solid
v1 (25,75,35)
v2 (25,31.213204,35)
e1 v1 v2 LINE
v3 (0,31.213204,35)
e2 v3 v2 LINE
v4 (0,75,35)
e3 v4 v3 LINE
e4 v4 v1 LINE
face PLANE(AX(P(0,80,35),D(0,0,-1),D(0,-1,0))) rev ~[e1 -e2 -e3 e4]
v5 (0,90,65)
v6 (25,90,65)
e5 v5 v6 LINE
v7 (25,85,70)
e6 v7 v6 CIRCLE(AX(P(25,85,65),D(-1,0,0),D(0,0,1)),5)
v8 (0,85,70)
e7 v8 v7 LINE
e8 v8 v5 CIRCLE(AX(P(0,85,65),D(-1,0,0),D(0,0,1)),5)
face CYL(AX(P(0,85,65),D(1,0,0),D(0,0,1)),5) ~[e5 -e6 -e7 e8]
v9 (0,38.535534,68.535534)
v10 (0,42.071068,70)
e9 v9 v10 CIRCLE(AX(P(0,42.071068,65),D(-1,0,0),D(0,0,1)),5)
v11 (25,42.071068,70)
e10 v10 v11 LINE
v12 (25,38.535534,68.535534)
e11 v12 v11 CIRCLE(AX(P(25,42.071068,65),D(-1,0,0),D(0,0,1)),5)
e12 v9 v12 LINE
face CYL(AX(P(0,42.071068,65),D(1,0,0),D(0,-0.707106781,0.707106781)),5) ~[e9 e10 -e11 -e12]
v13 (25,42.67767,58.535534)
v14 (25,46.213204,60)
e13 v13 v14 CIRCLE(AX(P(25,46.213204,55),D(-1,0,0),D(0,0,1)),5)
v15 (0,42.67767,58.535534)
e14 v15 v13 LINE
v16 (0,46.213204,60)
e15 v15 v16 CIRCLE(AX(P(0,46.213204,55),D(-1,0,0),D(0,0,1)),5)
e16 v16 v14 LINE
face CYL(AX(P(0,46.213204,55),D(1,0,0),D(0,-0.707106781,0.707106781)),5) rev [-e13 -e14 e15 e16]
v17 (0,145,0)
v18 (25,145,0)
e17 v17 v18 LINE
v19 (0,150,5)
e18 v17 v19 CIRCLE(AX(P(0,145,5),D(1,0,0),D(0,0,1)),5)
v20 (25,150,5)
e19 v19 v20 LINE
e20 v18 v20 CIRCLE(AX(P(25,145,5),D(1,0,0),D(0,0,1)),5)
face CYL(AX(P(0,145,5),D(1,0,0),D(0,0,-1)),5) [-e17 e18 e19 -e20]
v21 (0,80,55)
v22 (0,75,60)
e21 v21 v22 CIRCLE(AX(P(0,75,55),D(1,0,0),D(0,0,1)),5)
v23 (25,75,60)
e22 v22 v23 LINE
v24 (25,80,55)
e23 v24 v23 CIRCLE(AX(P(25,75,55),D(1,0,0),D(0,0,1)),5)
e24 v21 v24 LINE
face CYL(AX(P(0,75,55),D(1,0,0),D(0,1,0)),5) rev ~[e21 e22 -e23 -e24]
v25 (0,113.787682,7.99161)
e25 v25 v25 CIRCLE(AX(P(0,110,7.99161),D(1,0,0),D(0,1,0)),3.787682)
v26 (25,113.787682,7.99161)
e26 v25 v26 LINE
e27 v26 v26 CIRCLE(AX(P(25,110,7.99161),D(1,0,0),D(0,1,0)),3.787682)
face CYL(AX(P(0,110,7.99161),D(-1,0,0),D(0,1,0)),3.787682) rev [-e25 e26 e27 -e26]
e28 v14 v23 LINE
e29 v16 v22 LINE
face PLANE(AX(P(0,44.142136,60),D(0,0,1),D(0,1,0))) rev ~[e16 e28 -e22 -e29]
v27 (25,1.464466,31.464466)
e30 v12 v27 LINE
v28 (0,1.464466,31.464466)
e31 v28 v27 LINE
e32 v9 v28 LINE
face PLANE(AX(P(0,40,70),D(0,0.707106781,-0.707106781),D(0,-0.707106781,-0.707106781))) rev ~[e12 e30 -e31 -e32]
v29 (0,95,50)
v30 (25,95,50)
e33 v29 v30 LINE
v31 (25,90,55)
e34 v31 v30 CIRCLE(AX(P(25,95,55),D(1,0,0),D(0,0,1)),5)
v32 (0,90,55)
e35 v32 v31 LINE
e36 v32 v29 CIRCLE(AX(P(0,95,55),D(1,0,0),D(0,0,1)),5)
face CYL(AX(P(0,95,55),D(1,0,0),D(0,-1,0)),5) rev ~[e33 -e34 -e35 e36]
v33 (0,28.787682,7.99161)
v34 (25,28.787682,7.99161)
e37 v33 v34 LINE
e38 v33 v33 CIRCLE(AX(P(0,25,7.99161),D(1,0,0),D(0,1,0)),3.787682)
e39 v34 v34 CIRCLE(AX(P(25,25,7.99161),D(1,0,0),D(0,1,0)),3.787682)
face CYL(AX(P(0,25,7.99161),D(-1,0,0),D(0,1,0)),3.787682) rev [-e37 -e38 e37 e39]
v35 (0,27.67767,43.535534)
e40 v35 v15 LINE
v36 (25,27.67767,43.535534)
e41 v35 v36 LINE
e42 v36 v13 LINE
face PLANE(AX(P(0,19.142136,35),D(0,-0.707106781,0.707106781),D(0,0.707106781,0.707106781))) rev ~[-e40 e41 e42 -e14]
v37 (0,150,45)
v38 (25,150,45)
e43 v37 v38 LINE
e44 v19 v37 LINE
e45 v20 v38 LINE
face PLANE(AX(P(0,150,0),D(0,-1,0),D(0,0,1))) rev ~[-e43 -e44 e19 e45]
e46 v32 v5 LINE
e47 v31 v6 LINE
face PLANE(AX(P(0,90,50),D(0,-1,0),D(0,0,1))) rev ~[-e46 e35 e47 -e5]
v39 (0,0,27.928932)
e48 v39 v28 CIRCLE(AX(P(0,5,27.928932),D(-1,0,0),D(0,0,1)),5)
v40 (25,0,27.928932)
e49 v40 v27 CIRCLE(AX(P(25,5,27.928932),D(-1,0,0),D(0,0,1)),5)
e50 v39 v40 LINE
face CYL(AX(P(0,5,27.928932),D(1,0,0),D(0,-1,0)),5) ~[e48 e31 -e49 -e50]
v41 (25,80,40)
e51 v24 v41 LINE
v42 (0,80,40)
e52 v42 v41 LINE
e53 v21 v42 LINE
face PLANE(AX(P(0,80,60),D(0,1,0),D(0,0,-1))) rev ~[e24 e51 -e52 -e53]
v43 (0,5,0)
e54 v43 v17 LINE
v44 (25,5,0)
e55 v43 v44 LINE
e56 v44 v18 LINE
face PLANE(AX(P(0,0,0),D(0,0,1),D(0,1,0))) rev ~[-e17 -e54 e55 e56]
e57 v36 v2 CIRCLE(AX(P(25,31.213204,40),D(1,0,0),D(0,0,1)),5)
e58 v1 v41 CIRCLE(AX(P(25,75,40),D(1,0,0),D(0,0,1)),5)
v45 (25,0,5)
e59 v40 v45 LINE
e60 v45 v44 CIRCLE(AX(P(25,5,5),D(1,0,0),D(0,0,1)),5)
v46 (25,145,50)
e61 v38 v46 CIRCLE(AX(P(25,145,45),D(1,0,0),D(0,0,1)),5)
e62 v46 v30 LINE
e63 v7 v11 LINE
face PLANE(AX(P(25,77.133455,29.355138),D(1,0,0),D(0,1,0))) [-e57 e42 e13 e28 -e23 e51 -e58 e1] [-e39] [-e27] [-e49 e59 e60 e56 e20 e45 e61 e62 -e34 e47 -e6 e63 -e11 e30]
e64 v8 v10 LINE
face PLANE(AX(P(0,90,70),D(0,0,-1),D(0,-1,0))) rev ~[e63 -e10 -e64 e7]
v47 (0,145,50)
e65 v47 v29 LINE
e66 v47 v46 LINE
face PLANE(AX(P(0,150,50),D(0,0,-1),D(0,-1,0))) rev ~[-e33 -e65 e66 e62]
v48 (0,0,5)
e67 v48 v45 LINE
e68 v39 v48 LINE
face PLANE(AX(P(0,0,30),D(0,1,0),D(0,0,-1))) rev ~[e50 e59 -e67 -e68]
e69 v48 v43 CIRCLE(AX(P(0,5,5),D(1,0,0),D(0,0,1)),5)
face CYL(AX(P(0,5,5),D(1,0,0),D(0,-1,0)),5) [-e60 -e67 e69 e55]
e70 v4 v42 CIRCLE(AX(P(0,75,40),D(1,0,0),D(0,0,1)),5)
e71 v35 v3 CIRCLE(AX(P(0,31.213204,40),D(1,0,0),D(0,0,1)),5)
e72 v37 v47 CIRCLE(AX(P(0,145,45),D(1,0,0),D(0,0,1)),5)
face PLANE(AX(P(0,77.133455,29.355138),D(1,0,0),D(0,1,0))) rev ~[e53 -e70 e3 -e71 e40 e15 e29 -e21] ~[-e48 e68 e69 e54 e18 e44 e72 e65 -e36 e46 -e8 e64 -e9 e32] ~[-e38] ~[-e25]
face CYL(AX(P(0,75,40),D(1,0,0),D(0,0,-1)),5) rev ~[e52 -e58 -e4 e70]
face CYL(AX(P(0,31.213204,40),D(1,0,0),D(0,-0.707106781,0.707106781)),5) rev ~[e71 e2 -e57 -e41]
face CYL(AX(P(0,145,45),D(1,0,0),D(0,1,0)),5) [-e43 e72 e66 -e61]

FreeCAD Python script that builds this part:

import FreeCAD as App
import Part
import Sketcher
from FreeCAD import Vector
Q = App.Units.Quantity


def edges_at(feature, points):
    """Names of the edges that pass closest to the given points."""
    edges = feature.Shape.Edges
    near = lambda p: min(range(len(edges)), key=lambda i: edges[i].distToShape(Part.Vertex(*p))[0])
    return sorted({f"Edge{near(p) + 1}" for p in points})


def add_polygon(sketch, points):
    """Adds a closed chain of lines whose ends are joined by coincident constraints."""
    first, n = sketch.GeometryCount, len(points)
    for a, b in zip(points, points[1:] + points[:1]):
        sketch.addGeometry(Part.LineSegment(App.Vector(*a, 0), App.Vector(*b, 0)), False)
    for i in range(n):
        sketch.addConstraint(Sketcher.Constraint("Coincident", first + i, 2, first + (i + 1) % n, 1))

doc = App.newDocument("Part")
body = doc.addObject("PartDesign::Body", "Body")

sketch1 = body.newObject("Sketcher::SketchObject", "Sketch")
sketch1.AttachmentSupport = (doc.getObject("YZ_Plane"), [""])
sketch1.MapMode = "FlatFace"
add_polygon(sketch1, [(0, 30), (0, 0), (150, 0), (150, 50), (90, 50), (90, 70), (40, 70)])
sketch1.addGeometry(Part.Circle(Vector(25, 8, 0), Vector(0, 0, 1), 3.8), False)
sketch1.addGeometry(Part.Circle(Vector(110, 8, 0), Vector(0, 0, 1), 3.8), False)
add_polygon(sketch1, [(19.1, 35), (44.1, 60), (80, 60), (80, 35)])
sketch1.addConstraint([
    Sketcher.Constraint("Vertical", 0),
    Sketcher.Constraint("Horizontal", 1),
    Sketcher.Constraint("Vertical", 2),
    Sketcher.Constraint("Horizontal", 3),
    Sketcher.Constraint("Vertical", 4),
    Sketcher.Constraint("Horizontal", 5),
    Sketcher.Constraint("Horizontal", 10),
    Sketcher.Constraint("Vertical", 11),
    Sketcher.Constraint("Horizontal", 12),
    Sketcher.Constraint("Coincident", 0, 2, -1, 1),
    Sketcher.Constraint("Equal", 7, 8),
    Sketcher.Constraint("Parallel", 6, 9),
    Sketcher.Constraint("Horizontal", 7, 3, 8, 3),
    Sketcher.Constraint("Equal", 5, 2),
    Sketcher.Constraint("DistanceX", 1, 1, 1, 2, Q("150 mm")),
    Sketcher.Constraint("DistanceX", 3, 2, 3, 1, Q("60 mm")),
    Sketcher.Constraint("DistanceX", 5, 2, 5, 1, Q("50 mm")),
    Sketcher.Constraint("DistanceY", 0, 2, 0, 1, Q("30 mm")),
    Sketcher.Constraint("DistanceY", 4, 1, 4, 2, Q("20 mm")),
    Sketcher.Constraint("DistanceY", 11, 2, 11, 1, Q("25 mm")),
    Sketcher.Constraint("DistanceX", -1, 1, 7, 3, Q("25 mm")),
    Sketcher.Constraint("DistanceX", -1, 1, 8, 3, Q("110 mm")),
    Sketcher.Constraint("DistanceY", -1, 1, 9, 2, Q("60 mm")),
    Sketcher.Constraint("DistanceX", -1, 1, 10, 2, Q("80 mm")),
    Sketcher.Constraint("Diameter", 7, Q("7.575364 mm")),
    Sketcher.Constraint("DistanceX", 10, 1, 10, 2, Q("35.857864 mm")),
    Sketcher.Constraint("DistanceY", -1, 1, 7, 3, Q("7.99161 mm")),
])
pad1 = body.newObject("PartDesign::Pad", "Pad")
pad1.Profile = sketch1
pad1.Length = 25
doc.recompute()

fillet = body.newObject("PartDesign::Fillet", "Fillet")
fillet.Base = (pad1, edges_at(pad1, [
    (12.5, 90, 70),
    (12.5, 90, 50),
    (12.5, 150, 50),
    (12.5, 150, 0),
    (12.5, 40, 70),
    (12.5, 0, 30),
    (12.5, 0, 0),
]))
fillet.Radius = 5
doc.recompute()

fillet2 = body.newObject("PartDesign::Fillet", "Fillet001")
fillet2.Base = (fillet, edges_at(fillet, [
    (12.5, 19.142, 35),
    (12.5, 80, 60),
    (12.5, 44.142, 60),
    (12.5, 80, 35),
]))
fillet2.Radius = 5

doc.recompute()
